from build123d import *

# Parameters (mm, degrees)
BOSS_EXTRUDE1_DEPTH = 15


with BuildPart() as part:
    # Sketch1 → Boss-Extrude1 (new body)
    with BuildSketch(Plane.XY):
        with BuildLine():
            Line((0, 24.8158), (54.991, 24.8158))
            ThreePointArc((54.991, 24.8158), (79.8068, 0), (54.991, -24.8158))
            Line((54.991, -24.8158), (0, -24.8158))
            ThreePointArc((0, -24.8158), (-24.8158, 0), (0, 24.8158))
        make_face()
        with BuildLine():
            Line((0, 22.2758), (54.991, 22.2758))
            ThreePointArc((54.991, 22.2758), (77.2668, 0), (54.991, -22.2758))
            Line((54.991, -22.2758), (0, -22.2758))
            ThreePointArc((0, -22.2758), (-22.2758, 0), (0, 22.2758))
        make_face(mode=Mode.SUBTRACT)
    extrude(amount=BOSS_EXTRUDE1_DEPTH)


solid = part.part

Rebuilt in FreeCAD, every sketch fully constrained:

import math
import FreeCAD as App
import Part
import Sketcher
Q = App.Units.Quantity

doc = App.newDocument("Part")
body = doc.addObject("PartDesign::Body", "Body")

# Sketch on XY plane
sketch1 = body.newObject("Sketcher::SketchObject", "Sketch")
sketch1.AttachmentSupport = (doc.getObject("XY_Plane"), [""])
sketch1.MapMode = "FlatFace"
sketch1.addGeometry(Part.LineSegment(App.Vector(55, 25, 0), App.Vector(0, 25, 0)), False)
sketch1.addGeometry(Part.ArcOfCircle(Part.Circle(App.Vector(0, 0, 0), App.Vector(0, 0, 1), 25), math.radians(90), math.radians(270)), False)
sketch1.addGeometry(Part.LineSegment(App.Vector(0, -25, 0), App.Vector(55, -25, 0)), False)
sketch1.addGeometry(Part.ArcOfCircle(Part.Circle(App.Vector(55, 0, 0), App.Vector(0, 0, 1), 25), math.radians(-90), math.radians(90)), False)
sketch1.addGeometry(Part.LineSegment(App.Vector(0, 22, 0), App.Vector(55, 22, 0)), False)
sketch1.addGeometry(Part.ArcOfCircle(Part.Circle(App.Vector(55, 0, 0), App.Vector(0, 0, 1), 22), math.radians(-90), math.radians(90)), False)
sketch1.addGeometry(Part.LineSegment(App.Vector(55, -22, 0), App.Vector(0, -22, 0)), False)
sketch1.addGeometry(Part.ArcOfCircle(Part.Circle(App.Vector(0, 0, 0), App.Vector(0, 0, 1), 22), math.radians(90), math.radians(270)), False)
sketch1.addConstraint(Sketcher.Constraint("Tangent", 0, 2, 1, 1))
sketch1.addConstraint(Sketcher.Constraint("Tangent", 1, 2, 2, 1))
sketch1.addConstraint(Sketcher.Constraint("Tangent", 2, 2, 3, 1))
sketch1.addConstraint(Sketcher.Constraint("Tangent", 3, 2, 0, 1))
sketch1.addConstraint(Sketcher.Constraint("Tangent", 4, 2, 5, 2))
sketch1.addConstraint(Sketcher.Constraint("Tangent", 5, 1, 6, 1))
sketch1.addConstraint(Sketcher.Constraint("Tangent", 6, 2, 7, 2))
sketch1.addConstraint(Sketcher.Constraint("Tangent", 7, 1, 4, 1))
sketch1.addConstraint(Sketcher.Constraint("Horizontal", 0))
sketch1.addConstraint(Sketcher.Constraint("Horizontal", 2))
sketch1.addConstraint(Sketcher.Constraint("Horizontal", 4))
sketch1.addConstraint(Sketcher.Constraint("Horizontal", 6))
sketch1.addConstraint(Sketcher.Constraint("Coincident", 1, 3, -1, 1))
sketch1.addConstraint(Sketcher.Constraint("Coincident", 7, 3, -1, 1))
sketch1.addConstraint(Sketcher.Constraint("Vertical", 5, 3, 2, 2))
sketch1.addConstraint(Sketcher.Constraint("Radius", 1, Q("0.977 in")))
sketch1.addConstraint(Sketcher.Constraint("Radius", 5, Q("0.877 in")))
sketch1.addConstraint(Sketcher.Constraint("DistanceX", 0, 2, 0, 1, Q("2.165 in")))
pad1 = body.newObject("PartDesign::Pad", "Pad")
pad1.Profile = sketch1
pad1.Length = 15

doc.recompute()
